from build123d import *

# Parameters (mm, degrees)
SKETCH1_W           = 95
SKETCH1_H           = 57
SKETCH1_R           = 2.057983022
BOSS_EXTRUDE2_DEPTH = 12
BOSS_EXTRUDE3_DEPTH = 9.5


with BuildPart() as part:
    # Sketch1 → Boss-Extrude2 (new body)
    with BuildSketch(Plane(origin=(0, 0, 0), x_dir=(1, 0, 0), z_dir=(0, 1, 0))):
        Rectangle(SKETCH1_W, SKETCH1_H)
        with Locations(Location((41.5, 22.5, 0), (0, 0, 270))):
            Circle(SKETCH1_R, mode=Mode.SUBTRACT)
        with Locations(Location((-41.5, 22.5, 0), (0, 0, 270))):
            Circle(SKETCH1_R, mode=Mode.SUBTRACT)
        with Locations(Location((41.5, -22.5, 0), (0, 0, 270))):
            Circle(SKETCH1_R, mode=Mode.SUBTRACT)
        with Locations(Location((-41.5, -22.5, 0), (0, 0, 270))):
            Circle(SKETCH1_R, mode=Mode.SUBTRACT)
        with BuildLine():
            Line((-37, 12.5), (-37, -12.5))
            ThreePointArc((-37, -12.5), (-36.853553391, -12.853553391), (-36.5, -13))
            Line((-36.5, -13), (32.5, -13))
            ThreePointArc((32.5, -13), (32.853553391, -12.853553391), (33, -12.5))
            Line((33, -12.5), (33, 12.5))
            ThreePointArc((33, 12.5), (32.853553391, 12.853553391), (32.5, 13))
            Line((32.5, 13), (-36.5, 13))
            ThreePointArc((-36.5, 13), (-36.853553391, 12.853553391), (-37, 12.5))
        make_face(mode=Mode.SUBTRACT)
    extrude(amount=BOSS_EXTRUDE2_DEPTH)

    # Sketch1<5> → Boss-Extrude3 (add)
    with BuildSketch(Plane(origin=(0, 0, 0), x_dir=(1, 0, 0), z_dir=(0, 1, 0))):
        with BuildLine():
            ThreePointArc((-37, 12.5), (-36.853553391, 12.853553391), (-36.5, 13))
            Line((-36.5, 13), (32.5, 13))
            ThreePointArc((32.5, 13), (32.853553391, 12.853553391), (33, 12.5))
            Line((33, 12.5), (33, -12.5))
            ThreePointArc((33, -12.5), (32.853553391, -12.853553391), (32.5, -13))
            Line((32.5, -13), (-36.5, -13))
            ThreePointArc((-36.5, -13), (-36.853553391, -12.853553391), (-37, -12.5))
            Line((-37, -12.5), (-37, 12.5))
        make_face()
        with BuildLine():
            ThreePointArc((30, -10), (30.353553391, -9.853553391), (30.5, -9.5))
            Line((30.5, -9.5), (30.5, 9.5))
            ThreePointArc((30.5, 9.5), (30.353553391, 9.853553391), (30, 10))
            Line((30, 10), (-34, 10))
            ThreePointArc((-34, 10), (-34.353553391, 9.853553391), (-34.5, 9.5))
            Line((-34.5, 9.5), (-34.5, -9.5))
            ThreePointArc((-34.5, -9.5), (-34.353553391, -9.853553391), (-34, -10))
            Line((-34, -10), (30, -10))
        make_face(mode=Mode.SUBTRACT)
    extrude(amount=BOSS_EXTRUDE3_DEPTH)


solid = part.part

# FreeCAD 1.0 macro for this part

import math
import FreeCAD as App
import Part
import Sketcher

V = App.Vector

doc = App.newDocument("Part")
params = doc.addObject("Spreadsheet::Sheet", "Params")
for row, (alias, value) in enumerate([
    ("sketch1_radius", "0.5 mm"),
    ("sketch1_width", "95 mm"),
    ("sketch1_width2", "69 mm"),
    ("sketch1_height", "57 mm"),
    ("sketch1_height2", "25 mm"),
    ("pad1_length", "12 mm"),
    ("sketch2_radius", "0.5 mm"),
    ("sketch2_width", "69 mm"),
    ("sketch2_width2", "64 mm"),
    ("sketch2_height", "25 mm"),
    ("sketch2_height2", "19 mm"),
    ("pad2_length", "9.5 mm"),
], start=1):
    params.set(f"A{row}", alias)
    params.set(f"B{row}", "=" + value)
    params.setAlias(f"B{row}", alias)

body = doc.addObject("PartDesign::Body", "Body")

# Sketch on XZ plane
sketch1 = body.newObject("Sketcher::SketchObject", "Sketch")
sketch1.AttachmentSupport = (doc.getObject("XZ_Plane"), [""])
sketch1.MapMode = "FlatFace"
sketch1.addGeometry(Part.LineSegment(V(-47.5, -28.5, 0), V(-47.5, 28.5, 0)), False)
sketch1.addGeometry(Part.LineSegment(V(-47.5, 28.5, 0), V(47.5, 28.5, 0)), False)
sketch1.addGeometry(Part.LineSegment(V(47.5, 28.5, 0), V(47.5, -28.5, 0)), False)
sketch1.addGeometry(Part.LineSegment(V(47.5, -28.5, 0), V(-47.5, -28.5, 0)), False)
sketch1.addGeometry(Part.Circle(V(-41.5, 22.5, 0), V(0, 0, 1), 2.057983), False)
sketch1.addGeometry(Part.Circle(V(41.5, 22.5, 0), V(0, 0, 1), 2.057983), False)
sketch1.addGeometry(Part.LineSegment(V(-37, 12.5, 0), V(-37, -12.5, 0)), False)
sketch1.addGeometry(Part.ArcOfCircle(Part.Circle(V(-36.5, -12.5, 0), V(0, 0, 1), 0.5), math.radians(180), math.radians(270)), False)
sketch1.addGeometry(Part.LineSegment(V(-36.5, -13, 0), V(32.5, -13, 0)), False)
sketch1.addGeometry(Part.ArcOfCircle(Part.Circle(V(32.5, -12.5, 0), V(0, 0, 1), 0.5), math.radians(-90), math.radians(0)), False)
sketch1.addGeometry(Part.LineSegment(V(33, -12.5, 0), V(33, 12.5, 0)), False)
sketch1.addGeometry(Part.ArcOfCircle(Part.Circle(V(32.5, 12.5, 0), V(0, 0, 1), 0.5), math.radians(0), math.radians(90)), False)
sketch1.addGeometry(Part.LineSegment(V(32.5, 13, 0), V(-36.5, 13, 0)), False)
sketch1.addGeometry(Part.ArcOfCircle(Part.Circle(V(-36.5, 12.5, 0), V(0, 0, 1), 0.5), math.radians(90), math.radians(180)), False)
sketch1.addGeometry(Part.Circle(V(-41.5, -22.5, 0), V(0, 0, 1), 2.057983), False)
sketch1.addGeometry(Part.Circle(V(41.5, -22.5, 0), V(0, 0, 1), 2.057983), False)
sketch1.addConstraint(Sketcher.Constraint("Coincident", 0, 2, 1, 1))
sketch1.addConstraint(Sketcher.Constraint("Coincident", 1, 2, 2, 1))
sketch1.addConstraint(Sketcher.Constraint("Coincident", 2, 2, 3, 1))
sketch1.addConstraint(Sketcher.Constraint("Coincident", 3, 2, 0, 1))
sketch1.addConstraint(Sketcher.Constraint("Tangent", 6, 2, 7, 1))
sketch1.addConstraint(Sketcher.Constraint("Tangent", 7, 2, 8, 1))
sketch1.addConstraint(Sketcher.Constraint("Tangent", 8, 2, 9, 1))
sketch1.addConstraint(Sketcher.Constraint("Tangent", 9, 2, 10, 1))
sketch1.addConstraint(Sketcher.Constraint("Tangent", 10, 2, 11, 1))
sketch1.addConstraint(Sketcher.Constraint("Tangent", 11, 2, 12, 1))
sketch1.addConstraint(Sketcher.Constraint("Tangent", 12, 2, 13, 1))
sketch1.addConstraint(Sketcher.Constraint("Tangent", 13, 2, 6, 1))
sketch1.addConstraint(Sketcher.Constraint("Vertical", 0))
sketch1.addConstraint(Sketcher.Constraint("Horizontal", 1))
sketch1.addConstraint(Sketcher.Constraint("Vertical", 2))
sketch1.addConstraint(Sketcher.Constraint("Horizontal", 3))
sketch1.addConstraint(Sketcher.Constraint("Vertical", 6))
sketch1.addConstraint(Sketcher.Constraint("Horizontal", 8))
sketch1.addConstraint(Sketcher.Constraint("Vertical", 10))
sketch1.addConstraint(Sketcher.Constraint("Horizontal", 12))
sketch1.addConstraint(Sketcher.Constraint("Equal", 4, 5))
sketch1.addConstraint(Sketcher.Constraint("Equal", 7, 9))
sketch1.addConstraint(Sketcher.Constraint("Equal", 9, 11))
sketch1.addConstraint(Sketcher.Constraint("Equal", 11, 13))
sketch1.addConstraint(Sketcher.Constraint("Equal", 5, 14))
sketch1.addConstraint(Sketcher.Constraint("Equal", 14, 15))
sketch1.addConstraint(Sketcher.Constraint("Symmetric", 5, 3, 14, 3, -1, 1))
sketch1.addConstraint(Sketcher.Constraint("Symmetric", 4, 3, 15, 3, -1, 1))
sketch1.addConstraint(Sketcher.Constraint("Symmetric", 0, 2, 2, 2, -1, 1))
sketch1.addConstraint(Sketcher.Constraint("Symmetric", 4, 3, 5, 3, -2))
sketch1.addConstraint(Sketcher.Constraint("Radius", 7, 0.5))
sketch1.addConstraint(Sketcher.Constraint("DistanceX", 1, 1, 1, 2, 95.0))
sketch1.addConstraint(Sketcher.Constraint("DistanceX", 8, 1, 8, 2, 69.0))
sketch1.addConstraint(Sketcher.Constraint("DistanceY", 0, 1, 0, 2, 57.0))
sketch1.addConstraint(Sketcher.Constraint("DistanceY", 6, 2, 6, 1, 25.0))
sketch1.addConstraint(Sketcher.Constraint("DistanceX", 6, 2, -1, 1, 37.0))
sketch1.addConstraint(Sketcher.Constraint("DistanceY", 7, 2, -1, 1, 13.0))
sketch1.addConstraint(Sketcher.Constraint("DistanceX", 4, 3, 5, 3, 83.0))
sketch1.addConstraint(Sketcher.Constraint("DistanceY", 7, 3, 4, 3, 35.0))
sketch1.addConstraint(Sketcher.Constraint("Diameter", 4, 4.115966))
sketch1.setExpression("Constraints[30]", "Params.sketch1_radius")
sketch1.setExpression("Constraints[31]", "Params.sketch1_width")
sketch1.setExpression("Constraints[32]", "Params.sketch1_width2")
sketch1.setExpression("Constraints[33]", "Params.sketch1_height")
sketch1.setExpression("Constraints[34]", "Params.sketch1_height2")
pad1 = body.newObject("PartDesign::Pad", "Pad")
pad1.Profile = sketch1
pad1.setExpression("Length", "Params.pad1_length")
pad1.Reversed = True

# Sketch on XZ plane
sketch2 = body.newObject("Sketcher::SketchObject", "Sketch001")
sketch2.AttachmentSupport = (doc.getObject("XZ_Plane"), [""])
sketch2.MapMode = "FlatFace"
sketch2.addGeometry(Part.ArcOfCircle(Part.Circle(V(-36.5, -12.5, 0), V(0, 0, 1), 0.5), math.radians(180), math.radians(270)), False)
sketch2.addGeometry(Part.LineSegment(V(-37, -12.5, 0), V(-37, 12.5, 0)), False)
sketch2.addGeometry(Part.ArcOfCircle(Part.Circle(V(-36.5, 12.5, 0), V(0, 0, 1), 0.5), math.radians(90), math.radians(180)), False)
sketch2.addGeometry(Part.LineSegment(V(-36.5, 13, 0), V(32.5, 13, 0)), False)
sketch2.addGeometry(Part.ArcOfCircle(Part.Circle(V(32.5, 12.5, 0), V(0, 0, 1), 0.5), math.radians(0), math.radians(90)), False)
sketch2.addGeometry(Part.LineSegment(V(33, 12.5, 0), V(33, -12.5, 0)), False)
sketch2.addGeometry(Part.ArcOfCircle(Part.Circle(V(32.5, -12.5, 0), V(0, 0, 1), 0.5), math.radians(-90), math.radians(0)), False)
sketch2.addGeometry(Part.LineSegment(V(32.5, -13, 0), V(-36.5, -13, 0)), False)
sketch2.addGeometry(Part.LineSegment(V(30, 10, 0), V(-34, 10, 0)), False)
sketch2.addGeometry(Part.ArcOfCircle(Part.Circle(V(-34, 9.5, 0), V(0, 0, 1), 0.5), math.radians(90), math.radians(180)), False)
sketch2.addGeometry(Part.LineSegment(V(-34.5, 9.5, 0), V(-34.5, -9.5, 0)), False)
sketch2.addGeometry(Part.ArcOfCircle(Part.Circle(V(-34, -9.5, 0), V(0, 0, 1), 0.5), math.radians(180), math.radians(270)), False)
sketch2.addGeometry(Part.LineSegment(V(-34, -10, 0), V(30, -10, 0)), False)
sketch2.addGeometry(Part.ArcOfCircle(Part.Circle(V(30, -9.5, 0), V(0, 0, 1), 0.5), math.radians(-90), math.radians(0)), False)
sketch2.addGeometry(Part.LineSegment(V(30.5, -9.5, 0), V(30.5, 9.5, 0)), False)
sketch2.addGeometry(Part.ArcOfCircle(Part.Circle(V(30, 9.5, 0), V(0, 0, 1), 0.5), math.radians(0), math.radians(90)), False)
sketch2.addConstraint(Sketcher.Constraint("Tangent", 0, 1, 1, 1))
sketch2.addConstraint(Sketcher.Constraint("Tangent", 1, 2, 2, 2))
sketch2.addConstraint(Sketcher.Constraint("Tangent", 2, 1, 3, 1))
sketch2.addConstraint(Sketcher.Constraint("Tangent", 3, 2, 4, 2))
sketch2.addConstraint(Sketcher.Constraint("Tangent", 4, 1, 5, 1))
sketch2.addConstraint(Sketcher.Constraint("Tangent", 5, 2, 6, 2))
sketch2.addConstraint(Sketcher.Constraint("Tangent", 6, 1, 7, 1))
sketch2.addConstraint(Sketcher.Constraint("Tangent", 7, 2, 0, 2))
sketch2.addConstraint(Sketcher.Constraint("Tangent", 8, 2, 9, 1))
sketch2.addConstraint(Sketcher.Constraint("Tangent", 9, 2, 10, 1))
sketch2.addConstraint(Sketcher.Constraint("Tangent", 10, 2, 11, 1))
sketch2.addConstraint(Sketcher.Constraint("Tangent", 11, 2, 12, 1))
sketch2.addConstraint(Sketcher.Constraint("Tangent", 12, 2, 13, 1))
sketch2.addConstraint(Sketcher.Constraint("Tangent", 13, 2, 14, 1))
sketch2.addConstraint(Sketcher.Constraint("Tangent", 14, 2, 15, 1))
sketch2.addConstraint(Sketcher.Constraint("Tangent", 15, 2, 8, 1))
sketch2.addConstraint(Sketcher.Constraint("Vertical", 1))
sketch2.addConstraint(Sketcher.Constraint("Horizontal", 3))
sketch2.addConstraint(Sketcher.Constraint("Vertical", 5))
sketch2.addConstraint(Sketcher.Constraint("Horizontal", 7))
sketch2.addConstraint(Sketcher.Constraint("Horizontal", 8))
sketch2.addConstraint(Sketcher.Constraint("Vertical", 10))
sketch2.addConstraint(Sketcher.Constraint("Horizontal", 12))
sketch2.addConstraint(Sketcher.Constraint("Vertical", 14))
sketch2.addConstraint(Sketcher.Constraint("Equal", 0, 2))
sketch2.addConstraint(Sketcher.Constraint("Equal", 2, 4))
sketch2.addConstraint(Sketcher.Constraint("Equal", 4, 6))
sketch2.addConstraint(Sketcher.Constraint("Equal", 6, 9))
sketch2.addConstraint(Sketcher.Constraint("Equal", 9, 11))
sketch2.addConstraint(Sketcher.Constraint("Equal", 11, 13))
sketch2.addConstraint(Sketcher.Constraint("Equal", 13, 15))
sketch2.addConstraint(Sketcher.Constraint("Radius", 0, 0.5))
sketch2.addConstraint(Sketcher.Constraint("DistanceX", 3, 1, 3, 2, 69.0))
sketch2.addConstraint(Sketcher.Constraint("DistanceX", 8, 2, 8, 1, 64.0))
sketch2.addConstraint(Sketcher.Constraint("DistanceY", 1, 1, 1, 2, 25.0))
sketch2.addConstraint(Sketcher.Constraint("DistanceY", 10, 2, 10, 1, 19.0))
sketch2.addConstraint(Sketcher.Constraint("DistanceX", 9, 3, -1, 1, 34.0))
sketch2.addConstraint(Sketcher.Constraint("DistanceX", 0, 1, -1, 1, 37.0))
sketch2.addConstraint(Sketcher.Constraint("DistanceY", -1, 1, 2, 1, 13.0))
sketch2.addConstraint(Sketcher.Constraint("DistanceY", -1, 1, 8, 2, 10.0))
sketch2.setExpression("Constraints[31]", "Params.sketch2_radius")
sketch2.setExpression("Constraints[32]", "Params.sketch2_width")
sketch2.setExpression("Constraints[33]", "Params.sketch2_width2")
sketch2.setExpression("Constraints[34]", "Params.sketch2_height")
sketch2.setExpression("Constraints[35]", "Params.sketch2_height2")
pad2 = body.newObject("PartDesign::Pad", "Pad001")
pad2.Profile = sketch2
pad2.setExpression("Length", "Params.pad2_length")
pad2.Reversed = True

doc.recompute()
